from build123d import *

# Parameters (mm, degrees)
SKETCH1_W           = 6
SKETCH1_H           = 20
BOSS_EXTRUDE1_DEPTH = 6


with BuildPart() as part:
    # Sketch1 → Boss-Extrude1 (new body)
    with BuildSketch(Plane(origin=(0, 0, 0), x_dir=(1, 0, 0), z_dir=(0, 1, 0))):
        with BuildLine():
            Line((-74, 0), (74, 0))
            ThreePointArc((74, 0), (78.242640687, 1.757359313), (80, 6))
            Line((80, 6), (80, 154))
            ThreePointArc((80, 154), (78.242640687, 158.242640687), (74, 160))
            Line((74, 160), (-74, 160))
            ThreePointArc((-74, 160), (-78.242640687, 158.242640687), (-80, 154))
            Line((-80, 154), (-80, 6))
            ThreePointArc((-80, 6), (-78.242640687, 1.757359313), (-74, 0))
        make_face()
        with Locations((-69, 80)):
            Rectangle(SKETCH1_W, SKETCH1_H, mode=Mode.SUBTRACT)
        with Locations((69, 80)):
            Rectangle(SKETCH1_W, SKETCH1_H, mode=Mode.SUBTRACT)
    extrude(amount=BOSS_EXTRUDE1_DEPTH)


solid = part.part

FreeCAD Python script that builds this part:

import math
import FreeCAD as App
import Part
import Sketcher

doc = App.newDocument("Part")
body = doc.addObject("PartDesign::Body", "Body")

sketch1 = body.newObject("Sketcher::SketchObject", "Sketch")
sketch1.AttachmentSupport = (doc.getObject("XZ_Plane"), [""])
sketch1.MapMode = "FlatFace"
sketch1.addGeometry([
    Part.LineSegment(App.Vector(-74, 0, 0), App.Vector(74, 0, 0)),
    Part.ArcOfCircle(Part.Circle(App.Vector(74, -6, 0), App.Vector(0, 0, 1), 6), math.radians(0), math.radians(90)),
    Part.LineSegment(App.Vector(80, -6, 0), App.Vector(80, -154, 0)),
    Part.ArcOfCircle(Part.Circle(App.Vector(74, -154, 0), App.Vector(0, 0, 1), 6), math.radians(-90), math.radians(0)),
    Part.LineSegment(App.Vector(74, -160, 0), App.Vector(-74, -160, 0)),
    Part.ArcOfCircle(Part.Circle(App.Vector(-74, -154, 0), App.Vector(0, 0, 1), 6), math.radians(180), math.radians(270)),
    Part.LineSegment(App.Vector(-80, -154, 0), App.Vector(-80, -6, 0)),
    Part.ArcOfCircle(Part.Circle(App.Vector(-74, -6, 0), App.Vector(0, 0, 1), 6), math.radians(90), math.radians(180)),
    Part.LineSegment(App.Vector(-66, -70, 0), App.Vector(-72, -70, 0)),
    Part.LineSegment(App.Vector(-72, -70, 0), App.Vector(-72, -90, 0)),
    Part.LineSegment(App.Vector(-72, -90, 0), App.Vector(-66, -90, 0)),
    Part.LineSegment(App.Vector(-66, -90, 0), App.Vector(-66, -70, 0)),
    Part.LineSegment(App.Vector(72, -70, 0), App.Vector(66, -70, 0)),
    Part.LineSegment(App.Vector(66, -70, 0), App.Vector(66, -90, 0)),
    Part.LineSegment(App.Vector(66, -90, 0), App.Vector(72, -90, 0)),
    Part.LineSegment(App.Vector(72, -90, 0), App.Vector(72, -70, 0)),
], False)
sketch1.addConstraint([
    Sketcher.Constraint("Tangent", 0, 2, 1, 2),
    Sketcher.Constraint("Tangent", 1, 1, 2, 1),
    Sketcher.Constraint("Tangent", 2, 2, 3, 2),
    Sketcher.Constraint("Tangent", 3, 1, 4, 1),
    Sketcher.Constraint("Tangent", 4, 2, 5, 2),
    Sketcher.Constraint("Tangent", 5, 1, 6, 1),
    Sketcher.Constraint("Tangent", 6, 2, 7, 2),
    Sketcher.Constraint("Tangent", 7, 1, 0, 1),
    Sketcher.Constraint("Coincident", 8, 2, 9, 1),
    Sketcher.Constraint("Coincident", 9, 2, 10, 1),
    Sketcher.Constraint("Coincident", 10, 2, 11, 1),
    Sketcher.Constraint("Coincident", 11, 2, 8, 1),
    Sketcher.Constraint("Coincident", 12, 2, 13, 1),
    Sketcher.Constraint("Coincident", 13, 2, 14, 1),
    Sketcher.Constraint("Coincident", 14, 2, 15, 1),
    Sketcher.Constraint("Coincident", 15, 2, 12, 1),
    Sketcher.Constraint("Horizontal", 0),
    Sketcher.Constraint("Vertical", 2),
    Sketcher.Constraint("Horizontal", 4),
    Sketcher.Constraint("Vertical", 6),
    Sketcher.Constraint("Horizontal", 8),
    Sketcher.Constraint("Vertical", 9),
    Sketcher.Constraint("Horizontal", 10),
    Sketcher.Constraint("Vertical", 11),
    Sketcher.Constraint("Horizontal", 12),
    Sketcher.Constraint("Vertical", 13),
    Sketcher.Constraint("Horizontal", 14),
    Sketcher.Constraint("Vertical", 15),
    Sketcher.Constraint("Equal", 1, 3),
    Sketcher.Constraint("Equal", 3, 5),
    Sketcher.Constraint("Equal", 5, 7),
    Sketcher.Constraint("Symmetric", 0, 2, 7, 1, -1, 1),
    Sketcher.Constraint("Symmetric", 11, 2, 12, 2, -2),
    Sketcher.Constraint("Symmetric", 9, 2, 14, 2, -2),
    Sketcher.Constraint("Equal", 4, 2),
    Sketcher.Constraint("Radius", 1, 6.0),
    Sketcher.Constraint("DistanceX", 0, 1, 0, 2, 148.0),
    Sketcher.Constraint("DistanceX", 8, 2, 8, 1, 6.0),
    Sketcher.Constraint("DistanceY", 9, 2, 9, 1, 20.0),
    Sketcher.Constraint("DistanceX", 8, 2, -1, 1, 72.0),
    Sketcher.Constraint("DistanceY", 8, 2, -1, 1, 70.0),
])
pad1 = body.newObject("PartDesign::Pad", "Pad")
pad1.Profile = sketch1
pad1.Length = 6
pad1.Reversed = True

doc.recompute()
